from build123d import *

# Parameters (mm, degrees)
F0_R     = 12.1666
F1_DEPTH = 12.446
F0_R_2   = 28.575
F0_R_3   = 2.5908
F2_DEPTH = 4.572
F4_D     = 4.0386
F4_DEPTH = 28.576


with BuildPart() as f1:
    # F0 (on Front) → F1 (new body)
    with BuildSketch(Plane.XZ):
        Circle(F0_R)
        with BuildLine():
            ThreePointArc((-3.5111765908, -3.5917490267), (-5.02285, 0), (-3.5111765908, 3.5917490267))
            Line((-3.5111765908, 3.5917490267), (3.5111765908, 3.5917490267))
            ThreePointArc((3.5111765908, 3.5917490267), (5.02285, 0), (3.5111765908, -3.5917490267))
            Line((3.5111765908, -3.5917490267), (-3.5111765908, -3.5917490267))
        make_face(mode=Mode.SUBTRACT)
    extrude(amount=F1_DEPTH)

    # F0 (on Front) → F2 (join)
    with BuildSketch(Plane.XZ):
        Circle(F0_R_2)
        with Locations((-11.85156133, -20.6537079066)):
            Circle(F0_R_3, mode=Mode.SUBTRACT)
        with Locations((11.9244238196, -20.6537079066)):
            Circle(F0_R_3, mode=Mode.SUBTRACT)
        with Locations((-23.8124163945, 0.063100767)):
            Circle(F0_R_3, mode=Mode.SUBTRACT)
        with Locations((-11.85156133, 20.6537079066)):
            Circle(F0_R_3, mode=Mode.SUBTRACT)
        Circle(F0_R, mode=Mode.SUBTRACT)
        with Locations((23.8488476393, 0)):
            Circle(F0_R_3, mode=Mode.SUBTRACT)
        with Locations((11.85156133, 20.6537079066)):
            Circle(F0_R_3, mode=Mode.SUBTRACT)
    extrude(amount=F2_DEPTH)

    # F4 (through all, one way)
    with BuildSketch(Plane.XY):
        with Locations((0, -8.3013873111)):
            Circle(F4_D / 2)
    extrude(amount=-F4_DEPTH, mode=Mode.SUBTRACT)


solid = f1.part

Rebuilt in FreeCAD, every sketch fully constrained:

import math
import FreeCAD as App
import Part
import Sketcher

V = App.Vector
Q = App.Units.Quantity

doc = App.newDocument("Part")
body = doc.addObject("PartDesign::Body", "Body")

# Sketch on XZ plane
sketch1 = body.newObject("Sketcher::SketchObject", "Sketch")
sketch1.AttachmentSupport = (doc.getObject("XZ_Plane"), [""])
sketch1.MapMode = "FlatFace"
sketch1.addGeometry([
    Part.Circle(V(0, 0, 0), V(0, 0, 1), 12.1666),  # 0
    Part.LineSegment(V(3.511177, -3.591749, 0), V(-3.511177, -3.591749, 0)),  # 1
    Part.ArcOfCircle(Part.Circle(V(0, 0, 0), V(0, 0, 1), 5.02285), math.radians(134.35009), math.radians(225.64991)),  # 2
    Part.LineSegment(V(-3.511177, 3.591749, 0), V(3.511177, 3.591749, 0)),  # 3
    Part.ArcOfCircle(Part.Circle(V(0, 0, 0), V(0, 0, 1), 5.02285), math.radians(-45.64991), math.radians(45.64991)),  # 4
], False)
sketch1.addConstraint([
    Sketcher.Constraint("Coincident", 1, 2, 2, 2),
    Sketcher.Constraint("Coincident", 2, 1, 3, 1),
    Sketcher.Constraint("Coincident", 3, 2, 4, 2),
    Sketcher.Constraint("Coincident", 4, 1, 1, 1),
    Sketcher.Constraint("Horizontal", 1),
    Sketcher.Constraint("Horizontal", 3),
    Sketcher.Constraint("Coincident", 0, 3, -1, 1),
    Sketcher.Constraint("Coincident", 2, 3, -1, 1),
    Sketcher.Constraint("Coincident", 4, 3, -1, 1),
    Sketcher.Constraint("Equal", 2, 4),
    Sketcher.Constraint("Vertical", 1, 2, 2, 1),
    Sketcher.Constraint("Diameter", 0, Q("0.958 in")),
    Sketcher.Constraint("Radius", 2, 5.02285),
    Sketcher.Constraint("DistanceY", 1, 2, 2, 1, 7.183498),
])
pad1 = body.newObject("PartDesign::Pad", "Pad")
pad1.Profile = sketch1
pad1.Length = Q("0.49 in")

# Sketch on XZ plane
sketch2 = body.newObject("Sketcher::SketchObject", "Sketch001")
sketch2.AttachmentSupport = (doc.getObject("XZ_Plane"), [""])
sketch2.MapMode = "FlatFace"
sketch2.addGeometry([
    Part.Circle(V(0, 0, 0), V(0, 0, 1), 28.575),  # 0
    Part.Circle(V(-11.851561, -20.653708, 0), V(0, 0, 1), 2.5908),  # 1
    Part.Circle(V(11.924424, -20.653708, 0), V(0, 0, 1), 2.5908),  # 2
    Part.Circle(V(-23.812416, 0.063101, 0), V(0, 0, 1), 2.5908),  # 3
    Part.Circle(V(0, 0, 0), V(0, 0, 1), 12.1666),  # 4
    Part.Circle(V(-11.851561, 20.653708, 0), V(0, 0, 1), 2.5908),  # 5
    Part.Circle(V(23.848848, 0, 0), V(0, 0, 1), 2.5908),  # 6
    Part.Circle(V(11.851561, 20.653708, 0), V(0, 0, 1), 2.5908),  # 7
], False)
sketch2.addConstraint([
    Sketcher.Constraint("Coincident", 0, 3, -1, 1),
    Sketcher.Constraint("Coincident", 4, 3, -1, 1),
    Sketcher.Constraint("Equal", 1, 2),
    Sketcher.Constraint("Equal", 2, 3),
    Sketcher.Constraint("Equal", 3, 5),
    Sketcher.Constraint("Equal", 5, 6),
    Sketcher.Constraint("Equal", 6, 7),
    Sketcher.Constraint("Symmetric", 1, 3, 7, 3, -1, 1),
    Sketcher.Constraint("Symmetric", 5, 3, 7, 3, -2),
    Sketcher.Constraint("PointOnObject", 6, 3, -1),
    Sketcher.Constraint("Horizontal", 1, 3, 2, 3),
    Sketcher.Constraint("Diameter", 0, Q("2.25 in")),
    Sketcher.Constraint("Diameter", 1, Q("0.204 in")),
    Sketcher.Constraint("Diameter", 4, Q("0.958 in")),
    Sketcher.Constraint("DistanceX", 3, 3, 1, 3, Q("0.4708998 in")),
    Sketcher.Constraint("DistanceY", -1, 1, 3, 3, 0.063101),
    Sketcher.Constraint("DistanceX", 1, 3, -1, 1, 11.851561),
    Sketcher.Constraint("DistanceY", 1, 3, 3, 3, 20.716809),
    Sketcher.Constraint("DistanceX", 3, 3, 2, 3, 35.73684),
    Sketcher.Constraint("DistanceX", 1, 3, 6, 3, 35.700409),
])
pad2 = body.newObject("PartDesign::Pad", "Pad001")
pad2.Profile = sketch2
pad2.Length = Q("0.18 in")

# Sketch on XY plane
sketch3 = body.newObject("Sketcher::SketchObject", "Sketch002")
sketch3.AttachmentSupport = (doc.getObject("XY_Plane"), [""])
sketch3.MapMode = "FlatFace"
sketch3.addGeometry(Part.Circle(V(0, -8.301387, 0), V(0, 0, 1), 2.0193), False)
sketch3.addConstraint([
    Sketcher.Constraint("PointOnObject", 0, 3, -2),
    Sketcher.Constraint("Diameter", 0, Q("0.159 in")),
    Sketcher.Constraint("DistanceY", 0, 3, -1, 1, 8.301387),
])
pocket1 = body.newObject("PartDesign::Pocket", "Pocket")
pocket1.Profile = sketch3
pocket1.Type = "ThroughAll"

doc.recompute()
